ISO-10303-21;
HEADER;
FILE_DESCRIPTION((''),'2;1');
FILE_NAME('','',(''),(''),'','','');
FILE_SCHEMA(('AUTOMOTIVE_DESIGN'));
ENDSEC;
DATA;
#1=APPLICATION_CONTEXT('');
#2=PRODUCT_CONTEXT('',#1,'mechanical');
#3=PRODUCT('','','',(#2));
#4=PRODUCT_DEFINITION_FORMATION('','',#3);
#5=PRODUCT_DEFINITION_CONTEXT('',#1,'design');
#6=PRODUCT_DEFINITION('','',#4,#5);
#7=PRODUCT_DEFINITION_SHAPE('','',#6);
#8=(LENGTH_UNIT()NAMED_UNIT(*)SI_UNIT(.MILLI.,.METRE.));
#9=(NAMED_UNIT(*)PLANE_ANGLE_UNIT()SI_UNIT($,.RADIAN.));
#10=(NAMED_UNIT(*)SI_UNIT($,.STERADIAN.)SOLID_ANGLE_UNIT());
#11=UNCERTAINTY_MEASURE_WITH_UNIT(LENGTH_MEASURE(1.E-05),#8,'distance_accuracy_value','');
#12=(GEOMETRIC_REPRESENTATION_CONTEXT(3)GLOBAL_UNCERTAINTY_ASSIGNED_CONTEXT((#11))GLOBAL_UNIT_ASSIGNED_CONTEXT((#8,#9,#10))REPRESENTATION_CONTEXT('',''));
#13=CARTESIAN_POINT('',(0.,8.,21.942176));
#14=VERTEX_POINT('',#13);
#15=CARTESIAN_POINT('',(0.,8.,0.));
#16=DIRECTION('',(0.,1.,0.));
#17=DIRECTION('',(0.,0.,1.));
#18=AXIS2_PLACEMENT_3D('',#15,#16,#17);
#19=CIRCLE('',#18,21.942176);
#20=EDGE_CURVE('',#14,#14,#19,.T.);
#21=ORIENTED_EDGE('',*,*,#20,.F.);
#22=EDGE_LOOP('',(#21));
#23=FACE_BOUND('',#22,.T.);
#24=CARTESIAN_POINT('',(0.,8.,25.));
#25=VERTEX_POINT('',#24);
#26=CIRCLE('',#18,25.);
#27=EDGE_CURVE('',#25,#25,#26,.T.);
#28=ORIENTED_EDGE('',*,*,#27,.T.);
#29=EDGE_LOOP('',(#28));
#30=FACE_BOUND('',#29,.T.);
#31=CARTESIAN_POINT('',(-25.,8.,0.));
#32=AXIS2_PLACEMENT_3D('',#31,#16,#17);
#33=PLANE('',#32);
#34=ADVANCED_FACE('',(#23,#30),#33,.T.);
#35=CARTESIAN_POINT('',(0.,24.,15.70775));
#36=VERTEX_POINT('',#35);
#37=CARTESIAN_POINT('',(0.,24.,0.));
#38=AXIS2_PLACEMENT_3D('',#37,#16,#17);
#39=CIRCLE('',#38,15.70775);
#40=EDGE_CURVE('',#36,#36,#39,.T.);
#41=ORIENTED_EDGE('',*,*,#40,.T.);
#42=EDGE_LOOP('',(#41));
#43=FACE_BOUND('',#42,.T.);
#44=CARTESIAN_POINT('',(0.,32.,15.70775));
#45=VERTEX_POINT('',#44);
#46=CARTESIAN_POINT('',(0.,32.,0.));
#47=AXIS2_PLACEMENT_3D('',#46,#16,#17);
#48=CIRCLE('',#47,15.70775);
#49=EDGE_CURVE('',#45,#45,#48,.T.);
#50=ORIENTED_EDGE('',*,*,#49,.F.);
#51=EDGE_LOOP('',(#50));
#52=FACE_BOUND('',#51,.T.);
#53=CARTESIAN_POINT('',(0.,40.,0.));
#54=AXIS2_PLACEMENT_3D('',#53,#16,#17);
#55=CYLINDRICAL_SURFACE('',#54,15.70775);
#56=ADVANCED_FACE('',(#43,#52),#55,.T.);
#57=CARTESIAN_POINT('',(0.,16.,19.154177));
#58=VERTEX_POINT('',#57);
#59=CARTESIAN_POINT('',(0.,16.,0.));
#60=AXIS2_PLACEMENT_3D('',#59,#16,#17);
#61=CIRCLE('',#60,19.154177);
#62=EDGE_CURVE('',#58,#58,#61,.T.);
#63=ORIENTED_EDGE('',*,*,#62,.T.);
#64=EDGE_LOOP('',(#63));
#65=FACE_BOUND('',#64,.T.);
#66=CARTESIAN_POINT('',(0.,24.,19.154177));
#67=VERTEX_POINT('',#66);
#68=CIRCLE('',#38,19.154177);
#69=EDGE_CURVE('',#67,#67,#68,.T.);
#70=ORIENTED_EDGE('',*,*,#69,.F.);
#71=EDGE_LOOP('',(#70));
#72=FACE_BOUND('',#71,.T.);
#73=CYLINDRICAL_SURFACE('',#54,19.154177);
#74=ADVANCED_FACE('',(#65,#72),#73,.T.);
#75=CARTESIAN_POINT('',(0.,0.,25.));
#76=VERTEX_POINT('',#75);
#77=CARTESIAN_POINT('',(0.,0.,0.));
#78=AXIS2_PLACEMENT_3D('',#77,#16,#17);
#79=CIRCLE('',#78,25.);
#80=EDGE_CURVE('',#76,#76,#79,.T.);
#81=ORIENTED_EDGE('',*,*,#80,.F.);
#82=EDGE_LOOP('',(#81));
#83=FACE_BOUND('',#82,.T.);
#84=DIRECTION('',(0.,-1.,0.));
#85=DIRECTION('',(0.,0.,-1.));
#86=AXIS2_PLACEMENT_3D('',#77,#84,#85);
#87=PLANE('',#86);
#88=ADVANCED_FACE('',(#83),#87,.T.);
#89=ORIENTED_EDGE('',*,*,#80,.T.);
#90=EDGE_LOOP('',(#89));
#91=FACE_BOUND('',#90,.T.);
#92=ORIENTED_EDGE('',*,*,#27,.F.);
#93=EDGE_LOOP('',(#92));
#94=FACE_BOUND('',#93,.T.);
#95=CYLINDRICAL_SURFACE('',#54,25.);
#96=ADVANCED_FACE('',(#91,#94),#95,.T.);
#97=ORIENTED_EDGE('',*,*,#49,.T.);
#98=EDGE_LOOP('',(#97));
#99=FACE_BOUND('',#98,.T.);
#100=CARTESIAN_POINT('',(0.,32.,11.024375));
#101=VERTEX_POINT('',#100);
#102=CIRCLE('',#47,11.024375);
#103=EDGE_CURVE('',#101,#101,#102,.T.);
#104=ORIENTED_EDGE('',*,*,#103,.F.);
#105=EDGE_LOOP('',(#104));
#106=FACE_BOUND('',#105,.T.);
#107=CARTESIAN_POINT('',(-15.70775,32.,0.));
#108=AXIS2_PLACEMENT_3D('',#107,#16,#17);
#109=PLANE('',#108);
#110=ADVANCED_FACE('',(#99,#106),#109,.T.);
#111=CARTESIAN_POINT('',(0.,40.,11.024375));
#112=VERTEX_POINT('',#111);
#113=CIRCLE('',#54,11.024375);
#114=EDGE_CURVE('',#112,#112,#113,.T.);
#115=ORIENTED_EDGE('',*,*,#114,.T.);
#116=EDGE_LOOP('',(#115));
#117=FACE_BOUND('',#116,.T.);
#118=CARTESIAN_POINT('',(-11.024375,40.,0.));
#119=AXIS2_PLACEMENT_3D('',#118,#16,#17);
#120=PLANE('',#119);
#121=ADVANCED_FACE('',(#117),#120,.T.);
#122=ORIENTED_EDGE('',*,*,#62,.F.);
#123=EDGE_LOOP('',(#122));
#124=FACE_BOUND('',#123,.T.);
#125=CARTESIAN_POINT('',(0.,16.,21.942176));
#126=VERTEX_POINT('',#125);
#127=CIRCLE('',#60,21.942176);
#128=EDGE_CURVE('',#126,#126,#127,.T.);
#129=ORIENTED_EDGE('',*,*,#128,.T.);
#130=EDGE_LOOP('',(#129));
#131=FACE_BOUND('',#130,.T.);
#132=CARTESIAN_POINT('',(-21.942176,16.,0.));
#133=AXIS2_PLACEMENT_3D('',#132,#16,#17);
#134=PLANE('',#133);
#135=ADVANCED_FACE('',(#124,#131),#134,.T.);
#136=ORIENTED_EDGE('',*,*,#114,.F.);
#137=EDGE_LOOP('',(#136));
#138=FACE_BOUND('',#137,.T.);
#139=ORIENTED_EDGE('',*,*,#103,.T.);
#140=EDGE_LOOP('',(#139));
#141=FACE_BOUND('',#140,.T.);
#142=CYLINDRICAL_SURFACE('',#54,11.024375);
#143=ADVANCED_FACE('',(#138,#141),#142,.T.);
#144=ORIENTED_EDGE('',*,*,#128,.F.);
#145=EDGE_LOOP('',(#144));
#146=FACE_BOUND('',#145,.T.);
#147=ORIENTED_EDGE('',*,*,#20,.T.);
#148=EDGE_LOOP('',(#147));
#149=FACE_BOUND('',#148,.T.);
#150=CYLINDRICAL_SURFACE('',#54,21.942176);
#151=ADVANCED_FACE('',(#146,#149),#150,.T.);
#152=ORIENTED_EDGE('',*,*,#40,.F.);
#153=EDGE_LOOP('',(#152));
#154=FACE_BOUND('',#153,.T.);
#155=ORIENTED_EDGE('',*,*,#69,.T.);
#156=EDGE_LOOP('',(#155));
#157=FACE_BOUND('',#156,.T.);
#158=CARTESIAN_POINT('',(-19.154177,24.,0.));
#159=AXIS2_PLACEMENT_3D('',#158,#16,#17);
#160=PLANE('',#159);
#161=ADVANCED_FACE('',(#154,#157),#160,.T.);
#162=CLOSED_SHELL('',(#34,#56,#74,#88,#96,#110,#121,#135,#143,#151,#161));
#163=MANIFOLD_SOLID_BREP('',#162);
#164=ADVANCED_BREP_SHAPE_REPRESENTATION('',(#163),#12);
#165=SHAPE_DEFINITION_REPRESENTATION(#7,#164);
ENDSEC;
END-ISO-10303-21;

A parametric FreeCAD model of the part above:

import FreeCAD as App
import Part
import Sketcher

V = App.Vector
Q = App.Units.Quantity


def add_polygon(sketch, points):
    """Adds a closed chain of lines whose ends are joined by coincident constraints."""
    first, n = sketch.GeometryCount, len(points)
    for a, b in zip(points, points[1:] + points[:1]):
        sketch.addGeometry(Part.LineSegment(App.Vector(*a, 0), App.Vector(*b, 0)), False)
    for i in range(n):
        sketch.addConstraint(Sketcher.Constraint("Coincident", first + i, 2, first + (i + 1) % n, 1))

doc = App.newDocument("Part")
body = doc.addObject("PartDesign::Body", "Body")

sketch1 = body.newObject("Sketcher::SketchObject", "Sketch")
sketch1.AttachmentSupport = (doc.getObject("XY_Plane"), [""])
sketch1.MapMode = "FlatFace"
add_polygon(sketch1, [(0, 0), (0, 40), (-11, 40), (-11, 32), (-15.7, 32), (-15.7, 24), (-19.2, 24), (-19.2, 16), (-21.9, 16), (-21.9, 8), (-25, 8), (-25, 0)])
sketch1.addConstraint(Sketcher.Constraint("Vertical", 0))
sketch1.addConstraint(Sketcher.Constraint("Horizontal", 1))
sketch1.addConstraint(Sketcher.Constraint("Vertical", 2))
sketch1.addConstraint(Sketcher.Constraint("Horizontal", 3))
sketch1.addConstraint(Sketcher.Constraint("Vertical", 4))
sketch1.addConstraint(Sketcher.Constraint("Horizontal", 5))
sketch1.addConstraint(Sketcher.Constraint("Vertical", 6))
sketch1.addConstraint(Sketcher.Constraint("Horizontal", 7))
sketch1.addConstraint(Sketcher.Constraint("Vertical", 8))
sketch1.addConstraint(Sketcher.Constraint("Horizontal", 9))
sketch1.addConstraint(Sketcher.Constraint("Vertical", 10))
sketch1.addConstraint(Sketcher.Constraint("Horizontal", 11))
sketch1.addConstraint(Sketcher.Constraint("Coincident", 11, 2, -1, 1))
sketch1.addConstraint(Sketcher.Constraint("Equal", 2, 4))
sketch1.addConstraint(Sketcher.Constraint("Equal", 4, 6))
sketch1.addConstraint(Sketcher.Constraint("Equal", 6, 8))
sketch1.addConstraint(Sketcher.Constraint("Equal", 8, 10))
sketch1.addConstraint(Sketcher.Constraint("DistanceX", 11, 1, 11, 2, Q("25 mm")))
sketch1.addConstraint(Sketcher.Constraint("DistanceY", 0, 1, 0, 2, Q("40 mm")))
sketch1.addConstraint(Sketcher.Constraint("DistanceX", 7, 2, 7, 1, Q("2.788 mm")))
sketch1.addConstraint(Sketcher.Constraint("DistanceX", 5, 2, 2, 2, Q("8.129802 mm")))
sketch1.addConstraint(Sketcher.Constraint("DistanceX", 1, 2, 1, 1, Q("11.024375 mm")))
sketch1.addConstraint(Sketcher.Constraint("DistanceX", 3, 2, 3, 1, Q("4.683376 mm")))
revolution = body.newObject("PartDesign::Revolution", "Revolution")
revolution.Profile = sketch1
revolution.ReferenceAxis = (sketch1, ["V_Axis"])
revolution.Angle = 360

doc.recompute()
